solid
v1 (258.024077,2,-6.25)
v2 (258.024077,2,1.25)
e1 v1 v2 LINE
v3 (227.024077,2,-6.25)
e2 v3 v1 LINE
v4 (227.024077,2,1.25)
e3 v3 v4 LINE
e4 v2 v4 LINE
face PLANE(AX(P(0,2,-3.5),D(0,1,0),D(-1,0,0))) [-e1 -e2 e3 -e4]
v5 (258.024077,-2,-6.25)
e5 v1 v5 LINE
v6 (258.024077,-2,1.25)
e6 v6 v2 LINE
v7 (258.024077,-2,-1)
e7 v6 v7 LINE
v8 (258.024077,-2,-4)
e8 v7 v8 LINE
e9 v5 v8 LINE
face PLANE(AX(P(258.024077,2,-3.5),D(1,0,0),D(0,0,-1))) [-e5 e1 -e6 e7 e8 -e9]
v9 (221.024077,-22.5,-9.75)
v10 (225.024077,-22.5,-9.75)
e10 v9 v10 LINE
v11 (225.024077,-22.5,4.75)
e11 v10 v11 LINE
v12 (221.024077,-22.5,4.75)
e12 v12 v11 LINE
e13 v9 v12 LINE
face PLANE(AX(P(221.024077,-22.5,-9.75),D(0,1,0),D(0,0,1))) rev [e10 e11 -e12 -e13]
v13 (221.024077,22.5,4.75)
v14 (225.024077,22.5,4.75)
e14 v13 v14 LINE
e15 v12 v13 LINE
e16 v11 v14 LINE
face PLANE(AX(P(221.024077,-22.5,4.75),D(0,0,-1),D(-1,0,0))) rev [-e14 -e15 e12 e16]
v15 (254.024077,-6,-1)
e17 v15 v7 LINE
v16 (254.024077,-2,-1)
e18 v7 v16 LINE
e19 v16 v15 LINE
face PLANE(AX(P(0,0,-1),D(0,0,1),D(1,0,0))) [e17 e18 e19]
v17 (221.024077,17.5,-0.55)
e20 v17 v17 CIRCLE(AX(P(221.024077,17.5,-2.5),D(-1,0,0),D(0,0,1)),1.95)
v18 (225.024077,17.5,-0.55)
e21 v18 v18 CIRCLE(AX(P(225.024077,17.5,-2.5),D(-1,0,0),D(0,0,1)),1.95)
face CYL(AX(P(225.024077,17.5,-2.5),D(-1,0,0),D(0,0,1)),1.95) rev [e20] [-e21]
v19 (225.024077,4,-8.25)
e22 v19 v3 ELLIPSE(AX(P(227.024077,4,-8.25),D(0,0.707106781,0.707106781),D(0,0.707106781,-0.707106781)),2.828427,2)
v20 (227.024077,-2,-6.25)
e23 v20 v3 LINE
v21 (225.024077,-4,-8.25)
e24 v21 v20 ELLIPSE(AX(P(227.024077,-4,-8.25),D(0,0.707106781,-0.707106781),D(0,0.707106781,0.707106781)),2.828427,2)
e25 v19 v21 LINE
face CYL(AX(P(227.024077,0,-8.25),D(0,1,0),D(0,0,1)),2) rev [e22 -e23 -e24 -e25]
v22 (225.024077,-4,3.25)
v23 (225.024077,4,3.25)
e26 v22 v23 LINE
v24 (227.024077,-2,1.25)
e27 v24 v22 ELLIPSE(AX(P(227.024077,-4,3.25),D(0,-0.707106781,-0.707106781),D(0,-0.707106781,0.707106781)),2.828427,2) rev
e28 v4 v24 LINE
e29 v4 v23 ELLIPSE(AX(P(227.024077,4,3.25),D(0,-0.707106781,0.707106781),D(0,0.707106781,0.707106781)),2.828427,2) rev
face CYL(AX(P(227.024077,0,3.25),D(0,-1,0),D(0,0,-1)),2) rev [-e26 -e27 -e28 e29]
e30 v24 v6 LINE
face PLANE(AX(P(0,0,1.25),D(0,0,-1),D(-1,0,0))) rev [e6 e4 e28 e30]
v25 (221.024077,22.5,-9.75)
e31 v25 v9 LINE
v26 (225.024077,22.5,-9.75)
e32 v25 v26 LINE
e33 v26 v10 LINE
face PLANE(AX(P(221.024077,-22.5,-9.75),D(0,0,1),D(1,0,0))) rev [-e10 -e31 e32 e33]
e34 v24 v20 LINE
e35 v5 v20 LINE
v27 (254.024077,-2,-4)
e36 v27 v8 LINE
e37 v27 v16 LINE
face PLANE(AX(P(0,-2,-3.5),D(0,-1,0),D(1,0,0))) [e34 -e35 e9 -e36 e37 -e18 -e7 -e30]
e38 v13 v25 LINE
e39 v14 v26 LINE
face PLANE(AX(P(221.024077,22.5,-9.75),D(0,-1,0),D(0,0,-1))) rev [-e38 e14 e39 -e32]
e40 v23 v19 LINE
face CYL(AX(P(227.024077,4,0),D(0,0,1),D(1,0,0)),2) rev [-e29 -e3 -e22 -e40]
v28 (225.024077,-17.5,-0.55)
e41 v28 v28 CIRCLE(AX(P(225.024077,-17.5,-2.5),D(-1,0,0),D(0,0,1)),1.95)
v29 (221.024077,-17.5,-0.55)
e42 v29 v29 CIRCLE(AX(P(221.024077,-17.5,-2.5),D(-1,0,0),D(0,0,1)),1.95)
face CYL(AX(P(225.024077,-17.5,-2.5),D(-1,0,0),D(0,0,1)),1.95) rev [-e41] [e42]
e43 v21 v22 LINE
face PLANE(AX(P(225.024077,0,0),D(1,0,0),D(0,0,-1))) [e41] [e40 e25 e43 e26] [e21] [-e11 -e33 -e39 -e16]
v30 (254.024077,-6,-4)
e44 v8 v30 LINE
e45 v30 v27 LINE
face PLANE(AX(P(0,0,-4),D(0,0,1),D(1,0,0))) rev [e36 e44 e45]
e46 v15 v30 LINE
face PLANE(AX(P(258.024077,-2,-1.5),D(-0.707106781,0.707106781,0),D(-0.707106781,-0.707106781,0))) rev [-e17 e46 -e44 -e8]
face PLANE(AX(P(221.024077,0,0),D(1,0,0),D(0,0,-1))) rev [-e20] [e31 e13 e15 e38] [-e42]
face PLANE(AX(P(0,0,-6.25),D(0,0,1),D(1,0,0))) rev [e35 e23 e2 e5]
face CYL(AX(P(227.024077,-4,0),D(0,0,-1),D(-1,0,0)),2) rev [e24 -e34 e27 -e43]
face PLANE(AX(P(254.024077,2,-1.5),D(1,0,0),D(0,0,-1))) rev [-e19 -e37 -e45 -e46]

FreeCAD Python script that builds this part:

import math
import FreeCAD as App
import Part
import Sketcher
from FreeCAD import Vector
Q = App.Units.Quantity


def edges_at(feature, points):
    """Names of the edges that pass closest to the given points."""
    edges = feature.Shape.Edges
    near = lambda p: min(range(len(edges)), key=lambda i: edges[i].distToShape(Part.Vertex(*p))[0])
    return sorted({f"Edge{near(p) + 1}" for p in points})


def add_polygon(sketch, points):
    """Adds a closed chain of lines whose ends are joined by coincident constraints."""
    first, n = sketch.GeometryCount, len(points)
    for a, b in zip(points, points[1:] + points[:1]):
        sketch.addGeometry(Part.LineSegment(App.Vector(*a, 0), App.Vector(*b, 0)), False)
    for i in range(n):
        sketch.addConstraint(Sketcher.Constraint("Coincident", first + i, 2, first + (i + 1) % n, 1))

doc = App.newDocument("Part")
body = doc.addObject("PartDesign::Body", "Body")

sketch1 = doc.addObject("Sketcher::SketchObject", "Sketch")
body.addObject(sketch1)
sketch1.AttachmentSupport = (doc.XY_Plane, [""])
sketch1.MapMode = "FlatFace"
sketch1.AttachmentOffset = App.Placement(Vector(0, 0, -2.5), App.Rotation())
sketch1.addGeometry([
    Part.LineSegment(Vector(230, 2, 0), Vector(225, 2, 0)),
    Part.LineSegment(Vector(225, 2, 0), Vector(225, -2, 0)),
    Part.LineSegment(Vector(225, -2, 0), Vector(230, -2, 0)),
    Part.ArcOfCircle(Part.Circle(Vector(230, 0, 0), Vector(0, 0, 1), 2), math.radians(-90), math.radians(90)),
    Part.Circle(Vector(230, 0, 0), Vector(0, 0, 1), 1),
], False)
sketch1.addConstraint([
    Sketcher.Constraint("Coincident", 0, 2, 1, 1),
    Sketcher.Constraint("Coincident", 1, 2, 2, 1),
    Sketcher.Constraint("Tangent", 2, 2, 3, 1),
    Sketcher.Constraint("Tangent", 3, 2, 0, 1),
    Sketcher.Constraint("Horizontal", 0),
    Sketcher.Constraint("Vertical", 1),
    Sketcher.Constraint("Horizontal", 2),
    Sketcher.Constraint("Coincident", 4, 3, 3, 3),
    Sketcher.Constraint("PointOnObject", 3, 3, -1),
    Sketcher.Constraint("Diameter", 4, Q("2 mm")),
    Sketcher.Constraint("Radius", 3, Q("2 mm")),
    Sketcher.Constraint("DistanceX", 0, 2, 0, 1, Q("5 mm")),
    Sketcher.Constraint("DistanceX", -1, 1, 3, 3, Q("230.024077 mm")),
])
pad1 = doc.addObject("PartDesign::Pad", "Pad")
body.addObject(pad1)
pad1.Profile = sketch1
pad1.Type = "TwoLengths"
pad1.Length = 1
pad1.Length2 = 1

sketch2 = doc.addObject("Sketcher::SketchObject", "Sketch001")
body.addObject(sketch2)
sketch2.AttachmentSupport = (doc.XZ_Plane, [""])
sketch2.MapMode = "FlatFace"
sketch2.AttachmentOffset = App.Placement(Vector(0, 0, -2), App.Rotation())
add_polygon(sketch2, [(225, -3.5), (222, -10.5), (216.1, -10.5), (216.1, -8.5), (221.1, -8.5), (223, -4), (223, -1), (221.1, 3.5), (216.1, 3.5), (216.1, 5.5), (222, 5.5), (225, -1.5)])
sketch2.addConstraint([
    Sketcher.Constraint("Horizontal", 1),
    Sketcher.Constraint("Vertical", 2),
    Sketcher.Constraint("Horizontal", 3),
    Sketcher.Constraint("Vertical", 5),
    Sketcher.Constraint("Horizontal", 7),
    Sketcher.Constraint("Vertical", 8),
    Sketcher.Constraint("Horizontal", 9),
    Sketcher.Constraint("Vertical", 11),
    Sketcher.Constraint("Parallel", 0, 4),
    Sketcher.Constraint("Parallel", 6, 10),
    Sketcher.Constraint("Vertical", 3, 2, 6, 2),
    Sketcher.Constraint("Vertical", 2, 2, 7, 2),
    Sketcher.Constraint("Vertical", 0, 2, 9, 2),
    Sketcher.Constraint("Equal", 2, 8),
    Sketcher.Constraint("Equal", 8, 11),
    Sketcher.Constraint("Equal", 4, 6),
    Sketcher.Constraint("DistanceX", 3, 1, 3, 2, Q("5 mm")),
    Sketcher.Constraint("DistanceY", 2, 1, 2, 2, Q("2 mm")),
    Sketcher.Constraint("DistanceY", 5, 1, 5, 2, Q("3 mm")),
    Sketcher.Constraint("DistanceY", 4, 2, -1, 1, Q("4 mm")),
    Sketcher.Constraint("DistanceX", 0, 2, 4, 2, Q("1 mm")),
    Sketcher.Constraint("DistanceY", 3, 2, 6, 2, Q("12 mm")),
    Sketcher.Constraint("DistanceX", 5, 2, 10, 2, Q("2 mm")),
    Sketcher.Constraint("DistanceX", -1, 1, 0, 2, Q("222.024077 mm")),
])
pad2 = doc.addObject("PartDesign::Pad", "Pad001")
body.addObject(pad2)
pad2.Profile = sketch2
pad2.Length = 4

sketch3 = doc.addObject("Sketcher::SketchObject", "Sketch002")
body.addObject(sketch3)
sketch3.AttachmentSupport = (doc.XY_Plane, [""])
sketch3.MapMode = "FlatFace"
sketch3.AttachmentOffset = App.Placement(Vector(0, 0, -10.5), App.Rotation())
sketch3.addGeometry(Part.Circle(Vector(218.1, 0, 0), Vector(0, 0, 1), 1.1), False)
sketch3.addConstraint([
    Sketcher.Constraint("PointOnObject", 0, 3, -1),
    Sketcher.Constraint("Diameter", 0, Q("2.14 mm")),
    Sketcher.Constraint("DistanceX", -1, 1, 0, 3, Q("218.095506 mm")),
])
pocket1 = doc.addObject("PartDesign::Pocket", "Pocket")
body.addObject(pocket1)
pocket1.Profile = sketch3
pocket1.Type = "ThroughAll"
pocket1.Reversed = True

sketch4 = doc.addObject("Sketcher::SketchObject", "Sketch003")
body.addObject(sketch4)
sketch4.AttachmentSupport = (doc.XY_Plane, [""])
sketch4.MapMode = "FlatFace"
sketch4.AttachmentOffset = App.Placement(Vector(0, 0, -1.5), App.Rotation())
add_polygon(sketch4, [(258, 2), (228.1, 2), (228.1, -2), (258, -2)])
sketch4.addConstraint([
    Sketcher.Constraint("Horizontal", 0),
    Sketcher.Constraint("Vertical", 1),
    Sketcher.Constraint("Horizontal", 2),
    Sketcher.Constraint("Vertical", 3),
    Sketcher.Constraint("DistanceY", 1, 2, 1, 1, Q("4 mm")),
    Sketcher.Constraint("DistanceY", -1, 1, 0, 2, Q("2 mm")),
    Sketcher.Constraint("DistanceX", 0, 2, 0, 1, Q("29.92159 mm")),
    Sketcher.Constraint("DistanceX", -1, 1, 0, 2, Q("228.102488 mm")),
])
pad3 = doc.addObject("PartDesign::Pad", "Pad002")
body.addObject(pad3)
pad3.Profile = sketch4
pad3.Length = 2
pad3.Reversed = True

sketch5 = doc.addObject("Sketcher::SketchObject", "Sketch004")
body.addObject(sketch5)
sketch5.AttachmentSupport = (doc.XY_Plane, [""])
sketch5.MapMode = "FlatFace"
sketch5.AttachmentOffset = App.Placement(Vector(0, 0, -3.5), App.Rotation())
add_polygon(sketch5, [(258, 2), (258, -6), (254, -6), (254, 2)])
sketch5.addConstraint([
    Sketcher.Constraint("Vertical", 0),
    Sketcher.Constraint("Horizontal", 1),
    Sketcher.Constraint("Vertical", 2),
    Sketcher.Constraint("Horizontal", 3),
    Sketcher.Constraint("DistanceX", 1, 2, 1, 1, Q("4 mm")),
    Sketcher.Constraint("DistanceY", 0, 2, 0, 1, Q("8 mm")),
    Sketcher.Constraint("DistanceY", 0, 2, -1, 1, Q("6 mm")),
    Sketcher.Constraint("DistanceX", -1, 1, 0, 2, Q("258.024077 mm")),
])
pad4 = doc.addObject("PartDesign::Pad", "Pad003")
body.addObject(pad4)
pad4.Profile = sketch5
pad4.Length = 2

sketch6 = doc.addObject("Sketcher::SketchObject", "Sketch005")
body.addObject(sketch6)
sketch6.AttachmentSupport = (doc.XY_Plane, [""])
sketch6.MapMode = "FlatFace"
sketch6.AttachmentOffset = App.Placement(Vector(0, 0, -3.5), App.Rotation())
add_polygon(sketch6, [(258, -6), (254, -6), (258, -2)])
sketch6.addConstraint([
    Sketcher.Constraint("Horizontal", 0),
    Sketcher.Constraint("Vertical", 2),
    Sketcher.Constraint("Equal", 0, 2),
    Sketcher.Constraint("DistanceX", 0, 2, 0, 1, Q("4 mm")),
    Sketcher.Constraint("DistanceY", 0, 2, -1, 1, Q("6 mm")),
    Sketcher.Constraint("DistanceX", -1, 1, 0, 2, Q("254.024077 mm")),
])
pocket2 = doc.addObject("PartDesign::Pocket", "Pocket001")
body.addObject(pocket2)
pocket2.Profile = sketch6
pocket2.Length = 2
pocket2.Reversed = True

sketch7 = doc.addObject("Sketcher::SketchObject", "Sketch006")
body.addObject(sketch7)
sketch7.AttachmentSupport = (doc.XY_Plane, [""])
sketch7.MapMode = "FlatFace"
sketch7.AttachmentOffset = App.Placement(Vector(0, 0, -3.5), App.Rotation())
add_polygon(sketch7, [(258, 2), (258, -2), (223.5, -2), (223.5, 2)])
sketch7.addConstraint([
    Sketcher.Constraint("Vertical", 0),
    Sketcher.Constraint("Horizontal", 1),
    Sketcher.Constraint("Vertical", 2),
    Sketcher.Constraint("Horizontal", 3),
    Sketcher.Constraint("DistanceY", 0, 2, 0, 1, Q("4 mm")),
    Sketcher.Constraint("DistanceX", 1, 2, 1, 1, Q("34.5 mm")),
    Sketcher.Constraint("DistanceY", 0, 2, -1, 1, Q("2 mm")),
    Sketcher.Constraint("DistanceX", -1, 1, 0, 2, Q("258.024077 mm")),
])
pad5 = doc.addObject("PartDesign::Pad", "Pad004")
body.addObject(pad5)
pad5.Profile = sketch7
pad5.Length = 2.75
pad5.Reversed = True

sketch8 = doc.addObject("Sketcher::SketchObject", "Sketch007")
body.addObject(sketch8)
sketch8.AttachmentSupport = (doc.XY_Plane, [""])
sketch8.MapMode = "FlatFace"
sketch8.AttachmentOffset = App.Placement(Vector(0, 0, -1.5), App.Rotation())
add_polygon(sketch8, [(223.5, 2), (223.5, -2), (258, -2), (258, 2)])
sketch8.addConstraint([
    Sketcher.Constraint("Vertical", 0),
    Sketcher.Constraint("Horizontal", 1),
    Sketcher.Constraint("Vertical", 2),
    Sketcher.Constraint("Horizontal", 3),
    Sketcher.Constraint("DistanceY", 0, 2, 0, 1, Q("4 mm")),
    Sketcher.Constraint("DistanceX", 1, 1, 1, 2, Q("34.5 mm")),
    Sketcher.Constraint("DistanceY", 0, 2, -1, 1, Q("2 mm")),
    Sketcher.Constraint("DistanceX", -1, 1, 0, 2, Q("223.524077 mm")),
])
pad6 = doc.addObject("PartDesign::Pad", "Pad005")
body.addObject(pad6)
pad6.Profile = sketch8
pad6.Length = 2.75

sketch9 = doc.addObject("Sketcher::SketchObject", "Sketch008")
body.addObject(sketch9)
sketch9.AttachmentSupport = (doc.XY_Plane, [""])
sketch9.MapMode = "FlatFace"
sketch9.AttachmentOffset = App.Placement(Vector(0, 0, -3.5), App.Rotation())
add_polygon(sketch9, [(258, -2), (254, -6), (254, -2)])
sketch9.addConstraint([
    Sketcher.Constraint("Vertical", 1),
    Sketcher.Constraint("Horizontal", 2),
    Sketcher.Constraint("Equal", 2, 1),
    Sketcher.Constraint("DistanceX", 2, 1, 2, 2, Q("4 mm")),
    Sketcher.Constraint("DistanceY", 0, 2, -1, 1, Q("6 mm")),
    Sketcher.Constraint("DistanceX", -1, 1, 0, 2, Q("254.024077 mm")),
])
pad7 = doc.addObject("PartDesign::Pad", "Pad006")
body.addObject(pad7)
pad7.Profile = sketch9
pad7.Length = 0.5
pad7.Reversed = True

sketch10 = doc.addObject("Sketcher::SketchObject", "Sketch009")
body.addObject(sketch10)
sketch10.AttachmentSupport = (doc.XY_Plane, [""])
sketch10.MapMode = "FlatFace"
sketch10.AttachmentOffset = App.Placement(Vector(0, 0, -1.5), App.Rotation())
add_polygon(sketch10, [(254, -2), (254, -6), (258, -2)])
sketch10.addConstraint([
    Sketcher.Constraint("Vertical", 0),
    Sketcher.Constraint("Horizontal", 2),
    Sketcher.Constraint("Equal", 2, 0),
    Sketcher.Constraint("DistanceX", 2, 2, 2, 1, Q("4 mm")),
    Sketcher.Constraint("DistanceY", 0, 2, -1, 1, Q("6 mm")),
    Sketcher.Constraint("DistanceX", -1, 1, 0, 2, Q("254.024077 mm")),
])
pad8 = doc.addObject("PartDesign::Pad", "Pad007")
body.addObject(pad8)
pad8.Profile = sketch10
pad8.Length = 0.5

sketch11 = doc.addObject("Sketcher::SketchObject", "Sketch010")
body.addObject(sketch11)
sketch11.AttachmentSupport = (doc.XY_Plane, [""])
sketch11.MapMode = "FlatFace"
sketch11.AttachmentOffset = App.Placement(Vector(0, 0, -6.25), App.Rotation())
add_polygon(sketch11, [(224.8, 2), (224.8, -2), (223, -2), (223, 2)])
sketch11.addConstraint([
    Sketcher.Constraint("Vertical", 0),
    Sketcher.Constraint("Horizontal", 1),
    Sketcher.Constraint("Vertical", 2),
    Sketcher.Constraint("Horizontal", 3),
    Sketcher.Constraint("DistanceY", 0, 2, 0, 1, Q("4 mm")),
    Sketcher.Constraint("DistanceY", 0, 2, -1, 1, Q("2 mm")),
    Sketcher.Constraint("DistanceX", -1, 1, 0, 2, Q("224.804 mm")),
    Sketcher.Constraint("DistanceX", 1, 2, 1, 1, Q("1.779922 mm")),
])
pad9 = doc.addObject("PartDesign::Pad", "Pad008")
body.addObject(pad9)
pad9.Profile = sketch11
pad9.Length = 7.5

sketch12 = doc.addObject("Sketcher::SketchObject", "Sketch011")
body.addObject(sketch12)
sketch12.AttachmentSupport = (doc.YZ_Plane, [""])
sketch12.MapMode = "FlatFace"
sketch12.AttachmentOffset = App.Placement(Vector(0, 0, 223.024077), App.Rotation())
add_polygon(sketch12, [(14, -22), (-14, -22), (-14, 18), (14, 18)])
sketch12.addConstraint([
    Sketcher.Constraint("Horizontal", 0),
    Sketcher.Constraint("Vertical", 1),
    Sketcher.Constraint("Horizontal", 2),
    Sketcher.Constraint("Vertical", 3),
    Sketcher.Constraint("DistanceY", 1, 1, 1, 2, Q("40 mm")),
    Sketcher.Constraint("DistanceY", 0, 2, -1, 1, Q("22.5 mm")),
    Sketcher.Constraint("DistanceX", 0, 2, 0, 1, Q("27.313609 mm")),
    Sketcher.Constraint("DistanceX", 0, 2, -1, 1, Q("13.656804 mm")),
])
pocket3 = doc.addObject("PartDesign::Pocket", "Pocket002")
body.addObject(pocket3)
pocket3.Profile = sketch12
pocket3.Type = "TwoLengths"
pocket3.Length = 10
pocket3.Length2 = 2

sketch13 = doc.addObject("Sketcher::SketchObject", "Sketch012")
body.addObject(sketch13)
sketch13.AttachmentSupport = (doc.YZ_Plane, [""])
sketch13.MapMode = "FlatFace"
sketch13.AttachmentOffset = App.Placement(Vector(0, 0, 225.024077), App.Rotation())
add_polygon(sketch13, [(22, -10), (-22, -10), (-22, 5), (22, 5)])
sketch13.addConstraint([
    Sketcher.Constraint("Horizontal", 0),
    Sketcher.Constraint("Vertical", 1),
    Sketcher.Constraint("Horizontal", 2),
    Sketcher.Constraint("Vertical", 3),
    Sketcher.Constraint("DistanceX", 0, 2, 0, 1, Q("45 mm")),
    Sketcher.Constraint("DistanceY", 1, 1, 1, 2, Q("14.5 mm")),
    Sketcher.Constraint("DistanceX", 0, 2, -1, 1, Q("22.5 mm")),
    Sketcher.Constraint("DistanceY", 0, 2, -1, 1, Q("9.75 mm")),
])
pad10 = doc.addObject("PartDesign::Pad", "Pad009")
body.addObject(pad10)
pad10.Profile = sketch13
pad10.Length = 4
pad10.Reversed = True

sketch14 = doc.addObject("Sketcher::SketchObject", "Sketch013")
body.addObject(sketch14)
sketch14.AttachmentSupport = (doc.YZ_Plane, [""])
sketch14.MapMode = "FlatFace"
sketch14.AttachmentOffset = App.Placement(Vector(0, 0, 221.024077), App.Rotation())
sketch14.addGeometry([
    Part.Circle(Vector(17.5, -2.5, 0), Vector(0, 0, 1), 1.9),
    Part.Circle(Vector(-17.5, -2.5, 0), Vector(0, 0, 1), 1.9),
], False)
sketch14.addConstraint([
    Sketcher.Constraint("Equal", 0, 1),
    Sketcher.Constraint("Symmetric", 0, 3, 1, 3, -2),
    Sketcher.Constraint("Diameter", 0, Q("3.9 mm")),
    Sketcher.Constraint("DistanceX", 1, 3, 0, 3, Q("35 mm")),
    Sketcher.Constraint("DistanceY", 0, 3, -1, 1, Q("2.5 mm")),
])
pocket4 = doc.addObject("PartDesign::Pocket", "Pocket003")
body.addObject(pocket4)
pocket4.Profile = sketch14
pocket4.Length = 4
pocket4.Reversed = True
doc.recompute()

fillet = doc.addObject("PartDesign::Fillet", "Fillet")
body.addObject(fillet)
fillet.Base = (pocket4, edges_at(pocket4, [
    (225.024, 0, 1.25),
    (225.024, 0, -6.25),
    (225.024, -2, -2.5),
    (225.024, 2, -2.5),
]))
fillet.Radius = 2

doc.recompute()
